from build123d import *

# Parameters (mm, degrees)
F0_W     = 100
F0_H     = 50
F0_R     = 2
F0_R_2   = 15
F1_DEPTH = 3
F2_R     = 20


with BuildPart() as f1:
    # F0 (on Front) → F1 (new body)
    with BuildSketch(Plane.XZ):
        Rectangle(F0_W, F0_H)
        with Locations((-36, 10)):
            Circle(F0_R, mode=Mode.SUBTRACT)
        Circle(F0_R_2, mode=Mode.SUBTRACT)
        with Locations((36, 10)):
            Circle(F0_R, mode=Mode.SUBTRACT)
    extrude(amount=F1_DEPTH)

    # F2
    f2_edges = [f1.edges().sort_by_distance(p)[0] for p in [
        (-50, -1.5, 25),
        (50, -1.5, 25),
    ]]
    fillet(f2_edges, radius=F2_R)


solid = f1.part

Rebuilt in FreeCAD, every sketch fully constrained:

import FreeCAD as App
import Part
import Sketcher


def edges_at(feature, points):
    """Names of the edges that pass closest to the given points."""
    edges = feature.Shape.Edges
    near = lambda p: min(range(len(edges)), key=lambda i: edges[i].distToShape(Part.Vertex(*p))[0])
    return sorted({f"Edge{near(p) + 1}" for p in points})

doc = App.newDocument("Part")
body = doc.addObject("PartDesign::Body", "Body")

sketch1 = doc.addObject("Sketcher::SketchObject", "Sketch")
body.addObject(sketch1)
sketch1.AttachmentSupport = (doc.XZ_Plane, [""])
sketch1.MapMode = "FlatFace"
sketch1.addGeometry([
    Part.LineSegment(App.Vector(-50, 25, 0), App.Vector(-50, -25, 0)),
    Part.LineSegment(App.Vector(-50, -25, 0), App.Vector(50, -25, 0)),
    Part.LineSegment(App.Vector(50, -25, 0), App.Vector(50, 25, 0)),
    Part.LineSegment(App.Vector(50, 25, 0), App.Vector(-50, 25, 0)),
    Part.Circle(App.Vector(-36, 10, 0), App.Vector(0, 0, 1), 2),
    Part.Circle(App.Vector(0, 0, 0), App.Vector(0, 0, 1), 15),
    Part.Circle(App.Vector(36, 10, 0), App.Vector(0, 0, 1), 2),
], False)
sketch1.addConstraint([
    Sketcher.Constraint("Coincident", 0, 2, 1, 1),
    Sketcher.Constraint("Coincident", 1, 2, 2, 1),
    Sketcher.Constraint("Coincident", 2, 2, 3, 1),
    Sketcher.Constraint("Coincident", 3, 2, 0, 1),
    Sketcher.Constraint("Vertical", 0),
    Sketcher.Constraint("Horizontal", 1),
    Sketcher.Constraint("Vertical", 2),
    Sketcher.Constraint("Horizontal", 3),
    Sketcher.Constraint("Coincident", 5, 3, -1, 1),
    Sketcher.Constraint("Equal", 4, 6),
    Sketcher.Constraint("Symmetric", 0, 2, 2, 2, -1, 1),
    Sketcher.Constraint("Symmetric", 4, 3, 6, 3, -2),
    Sketcher.Constraint("Diameter", 4, 4.0),
    Sketcher.Constraint("Diameter", 5, 30.0),
    Sketcher.Constraint("DistanceX", 1, 1, 1, 2, 100.0),
    Sketcher.Constraint("DistanceY", 0, 2, 0, 1, 50.0),
    Sketcher.Constraint("DistanceX", 4, 3, -1, 1, 36.0),
    Sketcher.Constraint("DistanceY", -1, 1, 4, 3, 10.0),
])
pad1 = doc.addObject("PartDesign::Pad", "Pad")
body.addObject(pad1)
pad1.Profile = sketch1
pad1.Length = 3
doc.recompute()

fillet = doc.addObject("PartDesign::Fillet", "Fillet")
body.addObject(fillet)
fillet.Base = (pad1, edges_at(pad1, [(-50, -1.5, 25), (50, -1.5, 25)]))
fillet.Radius = 20

doc.recompute()
